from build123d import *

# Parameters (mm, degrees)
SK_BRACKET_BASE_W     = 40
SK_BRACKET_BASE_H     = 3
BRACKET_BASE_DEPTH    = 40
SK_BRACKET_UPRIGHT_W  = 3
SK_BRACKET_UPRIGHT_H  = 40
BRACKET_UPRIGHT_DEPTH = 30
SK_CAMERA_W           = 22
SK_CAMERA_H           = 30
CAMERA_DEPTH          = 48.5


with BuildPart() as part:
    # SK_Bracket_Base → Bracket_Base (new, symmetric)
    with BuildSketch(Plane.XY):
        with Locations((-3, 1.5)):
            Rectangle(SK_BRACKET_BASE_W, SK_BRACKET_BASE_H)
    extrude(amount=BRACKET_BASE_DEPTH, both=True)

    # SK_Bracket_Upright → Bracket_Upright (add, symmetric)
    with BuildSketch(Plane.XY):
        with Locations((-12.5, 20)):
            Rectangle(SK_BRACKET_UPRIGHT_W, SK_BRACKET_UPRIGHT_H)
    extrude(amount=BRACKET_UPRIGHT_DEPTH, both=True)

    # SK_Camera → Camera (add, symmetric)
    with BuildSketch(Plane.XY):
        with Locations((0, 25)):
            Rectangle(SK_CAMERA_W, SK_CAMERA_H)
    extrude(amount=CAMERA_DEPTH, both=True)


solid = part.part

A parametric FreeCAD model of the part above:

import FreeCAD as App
import Part
import Sketcher
Q = App.Units.Quantity

doc = App.newDocument("Part")
params = doc.addObject("Spreadsheet::Sheet", "Params")
for row, (alias, value) in enumerate([
    ("sketch1_width", "40 mm"),
    ("sketch1_height", "3 mm"),
    ("pad1_length", "80 mm"),
    ("sketch2_width", "3 mm"),
    ("sketch2_height", "40 mm"),
    ("pad2_length", "60 mm"),
    ("sketch3_width", "22 mm"),
    ("sketch3_height", "30 mm"),
    ("pad3_length", "97 mm"),
], start=1):
    params.set(f"A{row}", alias)
    params.set(f"B{row}", "=" + value)
    params.setAlias(f"B{row}", alias)

body = doc.addObject("PartDesign::Body", "Body")

# Sketch on XY plane
sketch1 = body.newObject("Sketcher::SketchObject", "Sketch")
sketch1.AttachmentSupport = (doc.getObject("XY_Plane"), [""])
sketch1.MapMode = "FlatFace"
sketch1.addGeometry(Part.LineSegment(App.Vector(-23, 3, 0), App.Vector(-23, 0, 0)), False)
sketch1.addGeometry(Part.LineSegment(App.Vector(-23, 0, 0), App.Vector(17, 0, 0)), False)
sketch1.addGeometry(Part.LineSegment(App.Vector(17, 0, 0), App.Vector(17, 3, 0)), False)
sketch1.addGeometry(Part.LineSegment(App.Vector(17, 3, 0), App.Vector(-23, 3, 0)), False)
sketch1.addConstraint(Sketcher.Constraint("Coincident", 0, 2, 1, 1))
sketch1.addConstraint(Sketcher.Constraint("Coincident", 1, 2, 2, 1))
sketch1.addConstraint(Sketcher.Constraint("Coincident", 2, 2, 3, 1))
sketch1.addConstraint(Sketcher.Constraint("Coincident", 3, 2, 0, 1))
sketch1.addConstraint(Sketcher.Constraint("Vertical", 0))
sketch1.addConstraint(Sketcher.Constraint("Horizontal", 1))
sketch1.addConstraint(Sketcher.Constraint("Vertical", 2))
sketch1.addConstraint(Sketcher.Constraint("Horizontal", 3))
sketch1.addConstraint(Sketcher.Constraint("PointOnObject", 0, 2, -1))
sketch1.addConstraint(Sketcher.Constraint("DistanceX", 1, 1, 1, 2, Q("40 mm")))
sketch1.addConstraint(Sketcher.Constraint("DistanceY", 0, 2, 0, 1, Q("3 mm")))
sketch1.addConstraint(Sketcher.Constraint("DistanceX", 0, 2, -1, 1, Q("23 mm")))
sketch1.setExpression("Constraints[9]", "Params.sketch1_width")
sketch1.setExpression("Constraints[10]", "Params.sketch1_height")
pad1 = body.newObject("PartDesign::Pad", "Pad")
pad1.Profile = sketch1
pad1.setExpression("Length", "Params.pad1_length")
pad1.Midplane = True

# Sketch on XY plane
sketch2 = body.newObject("Sketcher::SketchObject", "Sketch001")
sketch2.AttachmentSupport = (doc.getObject("XY_Plane"), [""])
sketch2.MapMode = "FlatFace"
sketch2.addGeometry(Part.LineSegment(App.Vector(-14, 40, 0), App.Vector(-14, 0, 0)), False)
sketch2.addGeometry(Part.LineSegment(App.Vector(-14, 0, 0), App.Vector(-11, 0, 0)), False)
sketch2.addGeometry(Part.LineSegment(App.Vector(-11, 0, 0), App.Vector(-11, 40, 0)), False)
sketch2.addGeometry(Part.LineSegment(App.Vector(-11, 40, 0), App.Vector(-14, 40, 0)), False)
sketch2.addConstraint(Sketcher.Constraint("Coincident", 0, 2, 1, 1))
sketch2.addConstraint(Sketcher.Constraint("Coincident", 1, 2, 2, 1))
sketch2.addConstraint(Sketcher.Constraint("Coincident", 2, 2, 3, 1))
sketch2.addConstraint(Sketcher.Constraint("Coincident", 3, 2, 0, 1))
sketch2.addConstraint(Sketcher.Constraint("Vertical", 0))
sketch2.addConstraint(Sketcher.Constraint("Horizontal", 1))
sketch2.addConstraint(Sketcher.Constraint("Vertical", 2))
sketch2.addConstraint(Sketcher.Constraint("Horizontal", 3))
sketch2.addConstraint(Sketcher.Constraint("PointOnObject", 0, 2, -1))
sketch2.addConstraint(Sketcher.Constraint("DistanceX", 1, 1, 1, 2, Q("3 mm")))
sketch2.addConstraint(Sketcher.Constraint("DistanceY", 0, 2, 0, 1, Q("40 mm")))
sketch2.addConstraint(Sketcher.Constraint("DistanceX", 0, 2, -1, 1, Q("14 mm")))
sketch2.setExpression("Constraints[9]", "Params.sketch2_width")
sketch2.setExpression("Constraints[10]", "Params.sketch2_height")
pad2 = body.newObject("PartDesign::Pad", "Pad001")
pad2.Profile = sketch2
pad2.setExpression("Length", "Params.pad2_length")
pad2.Midplane = True

# Sketch on XY plane
sketch3 = body.newObject("Sketcher::SketchObject", "Sketch002")
sketch3.AttachmentSupport = (doc.getObject("XY_Plane"), [""])
sketch3.MapMode = "FlatFace"
sketch3.addGeometry(Part.LineSegment(App.Vector(-11, 40, 0), App.Vector(-11, 10, 0)), False)
sketch3.addGeometry(Part.LineSegment(App.Vector(-11, 10, 0), App.Vector(11, 10, 0)), False)
sketch3.addGeometry(Part.LineSegment(App.Vector(11, 10, 0), App.Vector(11, 40, 0)), False)
sketch3.addGeometry(Part.LineSegment(App.Vector(11, 40, 0), App.Vector(-11, 40, 0)), False)
sketch3.addConstraint(Sketcher.Constraint("Coincident", 0, 2, 1, 1))
sketch3.addConstraint(Sketcher.Constraint("Coincident", 1, 2, 2, 1))
sketch3.addConstraint(Sketcher.Constraint("Coincident", 2, 2, 3, 1))
sketch3.addConstraint(Sketcher.Constraint("Coincident", 3, 2, 0, 1))
sketch3.addConstraint(Sketcher.Constraint("Vertical", 0))
sketch3.addConstraint(Sketcher.Constraint("Horizontal", 1))
sketch3.addConstraint(Sketcher.Constraint("Vertical", 2))
sketch3.addConstraint(Sketcher.Constraint("Horizontal", 3))
sketch3.addConstraint(Sketcher.Constraint("DistanceX", 1, 1, 1, 2, Q("22 mm")))
sketch3.addConstraint(Sketcher.Constraint("DistanceY", 0, 2, 0, 1, Q("30 mm")))
sketch3.addConstraint(Sketcher.Constraint("DistanceX", 0, 2, -1, 1, Q("11 mm")))
sketch3.addConstraint(Sketcher.Constraint("DistanceY", -1, 1, 0, 2, Q("10 mm")))
sketch3.setExpression("Constraints[8]", "Params.sketch3_width")
sketch3.setExpression("Constraints[9]", "Params.sketch3_height")
pad3 = body.newObject("PartDesign::Pad", "Pad002")
pad3.Profile = sketch3
pad3.setExpression("Length", "Params.pad3_length")
pad3.Midplane = True

doc.recompute()
